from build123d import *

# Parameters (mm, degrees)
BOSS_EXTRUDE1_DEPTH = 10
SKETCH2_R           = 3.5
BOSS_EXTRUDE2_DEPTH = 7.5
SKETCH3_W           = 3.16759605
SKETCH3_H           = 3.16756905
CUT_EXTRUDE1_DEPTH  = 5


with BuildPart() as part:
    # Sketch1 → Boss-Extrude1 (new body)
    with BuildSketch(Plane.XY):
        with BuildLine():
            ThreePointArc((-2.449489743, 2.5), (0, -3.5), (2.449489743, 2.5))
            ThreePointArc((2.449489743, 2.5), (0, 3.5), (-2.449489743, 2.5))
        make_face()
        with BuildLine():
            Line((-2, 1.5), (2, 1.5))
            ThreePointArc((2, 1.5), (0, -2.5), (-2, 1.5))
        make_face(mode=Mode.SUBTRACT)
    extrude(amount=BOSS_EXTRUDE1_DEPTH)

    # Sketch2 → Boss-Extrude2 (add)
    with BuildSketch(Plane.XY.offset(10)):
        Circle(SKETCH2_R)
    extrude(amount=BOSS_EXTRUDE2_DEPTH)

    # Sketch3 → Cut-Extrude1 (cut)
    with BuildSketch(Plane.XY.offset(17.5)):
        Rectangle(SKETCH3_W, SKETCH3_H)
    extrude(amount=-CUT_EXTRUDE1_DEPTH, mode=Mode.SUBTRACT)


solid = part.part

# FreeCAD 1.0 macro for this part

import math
import FreeCAD as App
import Part
import Sketcher
from FreeCAD import Vector
Q = App.Units.Quantity

doc = App.newDocument("Part")
body = doc.addObject("PartDesign::Body", "Body")

sketch1 = doc.addObject("Sketcher::SketchObject", "Sketch")
body.addObject(sketch1)
sketch1.AttachmentSupport = (doc.XY_Plane, [""])
sketch1.MapMode = "FlatFace"
sketch1.addGeometry(Part.ArcOfCircle(Part.Circle(Vector(0, 0, 0), Vector(0, 0, 1), 3.5), math.radians(134), math.radians(406)), False)
sketch1.addGeometry(Part.ArcOfCircle(Part.Circle(Vector(0, 0, 0), Vector(0, 0, 1), 3.5), math.radians(46), math.radians(134)), False)
sketch1.addGeometry(Part.ArcOfCircle(Part.Circle(Vector(0, 0, 0), Vector(0, 0, 1), 2.5), math.radians(143), math.radians(397)), False)
sketch1.addGeometry(Part.LineSegment(Vector(-2, 1.5, 0), Vector(2, 1.5, 0)), False)
sketch1.addConstraint(Sketcher.Constraint("Tangent", 0, 1, 1, 2))
sketch1.addConstraint(Sketcher.Constraint("Coincident", 1, 1, 0, 2))
sketch1.addConstraint(Sketcher.Constraint("Coincident", 2, 1, 3, 1))
sketch1.addConstraint(Sketcher.Constraint("Coincident", 3, 2, 2, 2))
sketch1.addConstraint(Sketcher.Constraint("Horizontal", 3))
sketch1.addConstraint(Sketcher.Constraint("Coincident", 0, 3, -1, 1))
sketch1.addConstraint(Sketcher.Constraint("Coincident", 2, 3, -1, 1))
sketch1.addConstraint(Sketcher.Constraint("Horizontal", 0, 1, 1, 1))
sketch1.addConstraint(Sketcher.Constraint("Radius", 0, Q("3.5 mm")))
sketch1.addConstraint(Sketcher.Constraint("Radius", 2, Q("2.5 mm")))
sketch1.addConstraint(Sketcher.Constraint("DistanceX", 3, 1, 3, 2, Q("4 mm")))
sketch1.addConstraint(Sketcher.Constraint("DistanceY", 2, 1, 0, 1, Q("1 mm")))
pad1 = doc.addObject("PartDesign::Pad", "Pad")
body.addObject(pad1)
pad1.Profile = sketch1
pad1.Length = 10

sketch2 = doc.addObject("Sketcher::SketchObject", "Sketch001")
body.addObject(sketch2)
sketch2.AttachmentSupport = (doc.XY_Plane, [""])
sketch2.MapMode = "FlatFace"
sketch2.AttachmentOffset = App.Placement(Vector(0, 0, 10), App.Rotation())
sketch2.addGeometry(Part.Circle(Vector(0, 0, 0), Vector(0, 0, 1), 3.5), False)
sketch2.addConstraint(Sketcher.Constraint("Coincident", 0, 3, -1, 1))
sketch2.addConstraint(Sketcher.Constraint("Diameter", 0, Q("7 mm")))
pad2 = doc.addObject("PartDesign::Pad", "Pad001")
body.addObject(pad2)
pad2.Profile = sketch2
pad2.Length = 7.5

sketch3 = doc.addObject("Sketcher::SketchObject", "Sketch002")
body.addObject(sketch3)
sketch3.AttachmentSupport = (doc.XY_Plane, [""])
sketch3.MapMode = "FlatFace"
sketch3.AttachmentOffset = App.Placement(Vector(0, 0, 17.5), App.Rotation())
sketch3.addGeometry(Part.LineSegment(Vector(-1.6, 1.6, 0), Vector(-1.6, -1.6, 0)), False)
sketch3.addGeometry(Part.LineSegment(Vector(-1.6, -1.6, 0), Vector(1.6, -1.6, 0)), False)
sketch3.addGeometry(Part.LineSegment(Vector(1.6, -1.6, 0), Vector(1.6, 1.6, 0)), False)
sketch3.addGeometry(Part.LineSegment(Vector(1.6, 1.6, 0), Vector(-1.6, 1.6, 0)), False)
sketch3.addConstraint(Sketcher.Constraint("Coincident", 0, 2, 1, 1))
sketch3.addConstraint(Sketcher.Constraint("Coincident", 1, 2, 2, 1))
sketch3.addConstraint(Sketcher.Constraint("Coincident", 2, 2, 3, 1))
sketch3.addConstraint(Sketcher.Constraint("Coincident", 3, 2, 0, 1))
sketch3.addConstraint(Sketcher.Constraint("Vertical", 0))
sketch3.addConstraint(Sketcher.Constraint("Horizontal", 1))
sketch3.addConstraint(Sketcher.Constraint("Vertical", 2))
sketch3.addConstraint(Sketcher.Constraint("Horizontal", 3))
sketch3.addConstraint(Sketcher.Constraint("Symmetric", 0, 2, 2, 2, -1, 1))
sketch3.addConstraint(Sketcher.Constraint("DistanceY", 0, 2, 0, 1, Q("3.167569 mm")))
sketch3.addConstraint(Sketcher.Constraint("DistanceX", 0, 2, -1, 1, Q("1.583798 mm")))
pocket1 = doc.addObject("PartDesign::Pocket", "Pocket")
body.addObject(pocket1)
pocket1.Profile = sketch3
pocket1.Length = 5

doc.recompute()
